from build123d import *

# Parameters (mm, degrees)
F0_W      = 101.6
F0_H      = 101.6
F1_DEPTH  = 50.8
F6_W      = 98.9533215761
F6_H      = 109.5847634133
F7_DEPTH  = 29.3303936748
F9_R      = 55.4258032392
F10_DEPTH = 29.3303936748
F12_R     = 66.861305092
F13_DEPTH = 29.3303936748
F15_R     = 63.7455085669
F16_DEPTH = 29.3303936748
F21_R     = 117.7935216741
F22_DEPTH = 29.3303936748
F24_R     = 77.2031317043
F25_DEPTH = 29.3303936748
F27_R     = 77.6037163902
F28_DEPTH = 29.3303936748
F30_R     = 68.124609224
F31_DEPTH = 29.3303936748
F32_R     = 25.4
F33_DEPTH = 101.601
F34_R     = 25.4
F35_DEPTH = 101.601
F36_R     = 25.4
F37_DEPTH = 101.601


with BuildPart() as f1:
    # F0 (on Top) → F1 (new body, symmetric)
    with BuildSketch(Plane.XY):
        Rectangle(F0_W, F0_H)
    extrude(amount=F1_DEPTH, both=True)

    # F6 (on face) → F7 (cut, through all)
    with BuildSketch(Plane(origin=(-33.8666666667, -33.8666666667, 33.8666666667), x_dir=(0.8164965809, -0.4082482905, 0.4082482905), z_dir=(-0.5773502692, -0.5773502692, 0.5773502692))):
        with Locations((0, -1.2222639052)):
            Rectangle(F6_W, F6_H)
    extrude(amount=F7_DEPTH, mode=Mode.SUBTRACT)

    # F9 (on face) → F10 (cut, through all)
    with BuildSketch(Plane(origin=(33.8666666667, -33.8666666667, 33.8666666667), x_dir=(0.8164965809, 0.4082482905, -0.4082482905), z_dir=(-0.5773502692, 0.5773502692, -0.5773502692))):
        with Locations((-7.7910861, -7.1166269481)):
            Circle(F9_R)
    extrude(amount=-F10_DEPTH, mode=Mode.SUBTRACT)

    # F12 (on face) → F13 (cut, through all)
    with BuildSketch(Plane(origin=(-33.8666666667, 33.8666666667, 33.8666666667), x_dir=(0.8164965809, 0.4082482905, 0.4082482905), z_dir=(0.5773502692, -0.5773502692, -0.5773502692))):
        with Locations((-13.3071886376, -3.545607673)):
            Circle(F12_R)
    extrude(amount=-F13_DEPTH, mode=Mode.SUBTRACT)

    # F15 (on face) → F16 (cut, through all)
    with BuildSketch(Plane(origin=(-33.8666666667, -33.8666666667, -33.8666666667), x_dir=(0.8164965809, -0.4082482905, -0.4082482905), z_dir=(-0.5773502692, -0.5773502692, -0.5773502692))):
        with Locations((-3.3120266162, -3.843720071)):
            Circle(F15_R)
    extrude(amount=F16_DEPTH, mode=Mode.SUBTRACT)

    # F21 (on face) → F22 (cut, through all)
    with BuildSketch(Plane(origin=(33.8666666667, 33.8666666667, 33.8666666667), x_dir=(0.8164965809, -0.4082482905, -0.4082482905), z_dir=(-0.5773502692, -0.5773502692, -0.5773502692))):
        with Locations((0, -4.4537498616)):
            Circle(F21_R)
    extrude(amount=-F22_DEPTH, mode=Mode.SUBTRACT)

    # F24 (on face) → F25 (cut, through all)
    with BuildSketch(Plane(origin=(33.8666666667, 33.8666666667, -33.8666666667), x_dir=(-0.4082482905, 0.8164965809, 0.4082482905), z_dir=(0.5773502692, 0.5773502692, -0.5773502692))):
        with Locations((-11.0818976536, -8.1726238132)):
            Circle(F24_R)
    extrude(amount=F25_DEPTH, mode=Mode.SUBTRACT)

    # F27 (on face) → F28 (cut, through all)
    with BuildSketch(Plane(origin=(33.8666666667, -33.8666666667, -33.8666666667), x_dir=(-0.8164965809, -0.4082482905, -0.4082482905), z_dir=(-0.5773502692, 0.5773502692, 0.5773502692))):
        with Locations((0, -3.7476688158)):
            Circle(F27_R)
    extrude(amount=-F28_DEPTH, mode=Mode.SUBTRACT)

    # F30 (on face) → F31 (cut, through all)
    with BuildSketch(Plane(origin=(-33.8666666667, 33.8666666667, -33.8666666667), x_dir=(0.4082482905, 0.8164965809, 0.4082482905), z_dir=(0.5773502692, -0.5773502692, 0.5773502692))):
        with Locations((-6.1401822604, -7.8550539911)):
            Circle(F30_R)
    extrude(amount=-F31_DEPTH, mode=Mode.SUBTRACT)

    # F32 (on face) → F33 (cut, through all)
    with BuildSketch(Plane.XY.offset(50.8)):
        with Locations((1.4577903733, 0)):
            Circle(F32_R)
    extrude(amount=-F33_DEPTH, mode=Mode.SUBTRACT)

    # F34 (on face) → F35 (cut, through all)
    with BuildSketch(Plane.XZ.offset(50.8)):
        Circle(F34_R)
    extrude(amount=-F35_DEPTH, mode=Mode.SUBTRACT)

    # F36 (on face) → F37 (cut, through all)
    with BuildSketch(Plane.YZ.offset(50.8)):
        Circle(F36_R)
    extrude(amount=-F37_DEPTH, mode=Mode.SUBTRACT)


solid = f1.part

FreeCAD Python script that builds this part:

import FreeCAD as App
import Part
import Sketcher
Q = App.Units.Quantity

doc = App.newDocument("Part")
body = doc.addObject("PartDesign::Body", "Body")

# Sketch on XY plane
sketch1 = doc.addObject("Sketcher::SketchObject", "Sketch")
body.addObject(sketch1)
sketch1.AttachmentSupport = (doc.XY_Plane, [""])
sketch1.MapMode = "FlatFace"
sketch1.addGeometry([
    Part.LineSegment(App.Vector(-51, 51, 0), App.Vector(-51, -51, 0)),
    Part.LineSegment(App.Vector(-51, -51, 0), App.Vector(51, -51, 0)),
    Part.LineSegment(App.Vector(51, -51, 0), App.Vector(51, 51, 0)),
    Part.LineSegment(App.Vector(51, 51, 0), App.Vector(-51, 51, 0)),
], False)
sketch1.addConstraint([
    Sketcher.Constraint("Coincident", 0, 2, 1, 1),
    Sketcher.Constraint("Coincident", 1, 2, 2, 1),
    Sketcher.Constraint("Coincident", 2, 2, 3, 1),
    Sketcher.Constraint("Coincident", 3, 2, 0, 1),
    Sketcher.Constraint("Vertical", 0),
    Sketcher.Constraint("Horizontal", 1),
    Sketcher.Constraint("Vertical", 2),
    Sketcher.Constraint("Horizontal", 3),
    Sketcher.Constraint("Symmetric", 0, 2, 2, 2, -1, 1),
    Sketcher.Constraint("Equal", 3, 0),
    Sketcher.Constraint("DistanceX", 1, 1, 1, 2, Q("4 in")),
])
pad1 = doc.addObject("PartDesign::Pad", "Pad")
body.addObject(pad1)
pad1.Profile = sketch1
pad1.Length = Q("4 in")
pad1.Midplane = True

# Sketch on an angled plane
sketch2 = doc.addObject("Sketcher::SketchObject", "Sketch001")
body.addObject(sketch2)
sketch2.Placement = App.Placement(App.Vector(-33.866667, -33.866667, 33.866667), App.Rotation(App.Vector(0.816496581, -0.40824829, 0.40824829), App.Vector(0, 0.707106781, 0.707106781), App.Vector(-0.577350269, -0.577350269, 0.577350269), "ZXY"))
sketch2.addGeometry([
    Part.LineSegment(App.Vector(-49, 54, 0), App.Vector(-49, -56, 0)),
    Part.LineSegment(App.Vector(-49, -56, 0), App.Vector(49, -56, 0)),
    Part.LineSegment(App.Vector(49, -56, 0), App.Vector(49, 54, 0)),
    Part.LineSegment(App.Vector(49, 54, 0), App.Vector(-49, 54, 0)),
], False)
sketch2.addConstraint([
    Sketcher.Constraint("Coincident", 0, 2, 1, 1),
    Sketcher.Constraint("Coincident", 1, 2, 2, 1),
    Sketcher.Constraint("Coincident", 2, 2, 3, 1),
    Sketcher.Constraint("Coincident", 3, 2, 0, 1),
    Sketcher.Constraint("Vertical", 0),
    Sketcher.Constraint("Horizontal", 1),
    Sketcher.Constraint("Vertical", 2),
    Sketcher.Constraint("Horizontal", 3),
    Sketcher.Constraint("DistanceX", 1, 1, 1, 2, Q("3.8958001 in")),
    Sketcher.Constraint("DistanceX", 0, 2, -1, 1, Q("1.9479 in")),
    Sketcher.Constraint("DistanceY", 0, 2, 0, 1, Q("109.584763 mm")),
    Sketcher.Constraint("DistanceY", 0, 2, -1, 1, Q("56.014646 mm")),
])
pocket1 = doc.addObject("PartDesign::Pocket", "Pocket")
body.addObject(pocket1)
pocket1.Profile = sketch2
pocket1.Type = "ThroughAll"
pocket1.Reversed = True

# Sketch on an angled plane
sketch3 = doc.addObject("Sketcher::SketchObject", "Sketch002")
body.addObject(sketch3)
sketch3.Placement = App.Placement(App.Vector(33.866667, -33.866667, 33.866667), App.Rotation(App.Vector(0.816496581, 0.40824829, -0.40824829), App.Vector(0, -0.707106781, -0.707106781), App.Vector(-0.577350269, 0.577350269, -0.577350269), "ZXY"))
sketch3.addGeometry(Part.Circle(App.Vector(-8, -7, 0), App.Vector(0, 0, 1), 55), False)
sketch3.addConstraint([
    Sketcher.Constraint("Diameter", 0, Q("110.851606 mm")),
    Sketcher.Constraint("DistanceX", 0, 3, -1, 1, Q("7.791086 mm")),
    Sketcher.Constraint("DistanceY", 0, 3, -1, 1, Q("7.116627 mm")),
])
pocket2 = doc.addObject("PartDesign::Pocket", "Pocket001")
body.addObject(pocket2)
pocket2.Profile = sketch3
pocket2.Type = "ThroughAll"

# Sketch on an angled plane
sketch4 = doc.addObject("Sketcher::SketchObject", "Sketch003")
body.addObject(sketch4)
sketch4.Placement = App.Placement(App.Vector(-33.866667, 33.866667, 33.866667), App.Rotation(App.Vector(0.816496581, 0.40824829, 0.40824829), App.Vector(0, -0.707106781, 0.707106781), App.Vector(0.577350269, -0.577350269, -0.577350269), "ZXY"))
sketch4.addGeometry(Part.Circle(App.Vector(-13, -4, 0), App.Vector(0, 0, 1), 67), False)
sketch4.addConstraint([
    Sketcher.Constraint("Diameter", 0, Q("133.72261 mm")),
    Sketcher.Constraint("DistanceX", 0, 3, -1, 1, Q("13.307189 mm")),
    Sketcher.Constraint("DistanceY", 0, 3, -1, 1, Q("3.545608 mm")),
])
pocket3 = doc.addObject("PartDesign::Pocket", "Pocket002")
body.addObject(pocket3)
pocket3.Profile = sketch4
pocket3.Type = "ThroughAll"

# Sketch on an angled plane
sketch5 = doc.addObject("Sketcher::SketchObject", "Sketch004")
body.addObject(sketch5)
sketch5.Placement = App.Placement(App.Vector(-33.866667, -33.866667, -33.866667), App.Rotation(App.Vector(0.816496581, -0.40824829, -0.40824829), App.Vector(0, -0.707106781, 0.707106781), App.Vector(-0.577350269, -0.577350269, -0.577350269), "ZXY"))
sketch5.addGeometry(Part.Circle(App.Vector(-3, -4, 0), App.Vector(0, 0, 1), 64), False)
sketch5.addConstraint([
    Sketcher.Constraint("Diameter", 0, Q("127.491017 mm")),
    Sketcher.Constraint("DistanceY", 0, 3, -1, 1, Q("3.84372 mm")),
    Sketcher.Constraint("DistanceX", 0, 3, -1, 1, Q("3.312027 mm")),
])
pocket4 = doc.addObject("PartDesign::Pocket", "Pocket003")
body.addObject(pocket4)
pocket4.Profile = sketch5
pocket4.Type = "ThroughAll"
pocket4.Reversed = True

# Sketch on an angled plane
sketch6 = doc.addObject("Sketcher::SketchObject", "Sketch005")
body.addObject(sketch6)
sketch6.Placement = App.Placement(App.Vector(33.866667, 33.866667, 33.866667), App.Rotation(App.Vector(0.816496581, -0.40824829, -0.40824829), App.Vector(0, -0.707106781, 0.707106781), App.Vector(-0.577350269, -0.577350269, -0.577350269), "ZXY"))
sketch6.addGeometry(Part.Circle(App.Vector(0, -4, 0), App.Vector(0, 0, 1), 118), False)
sketch6.addConstraint([
    Sketcher.Constraint("PointOnObject", 0, 3, -2),
    Sketcher.Constraint("Diameter", 0, Q("235.587043 mm")),
    Sketcher.Constraint("DistanceY", 0, 3, -1, 1, Q("4.45375 mm")),
])
pocket5 = doc.addObject("PartDesign::Pocket", "Pocket004")
body.addObject(pocket5)
pocket5.Profile = sketch6
pocket5.Type = "ThroughAll"

# Sketch on an angled plane
sketch7 = doc.addObject("Sketcher::SketchObject", "Sketch006")
body.addObject(sketch7)
sketch7.Placement = App.Placement(App.Vector(33.866667, 33.866667, -33.866667), App.Rotation(App.Vector(-0.40824829, 0.816496581, 0.40824829), App.Vector(0.707106781, 0, 0.707106781), App.Vector(0.577350269, 0.577350269, -0.577350269), "ZXY"))
sketch7.addGeometry(Part.Circle(App.Vector(-11, -8, 0), App.Vector(0, 0, 1), 77), False)
sketch7.addConstraint([
    Sketcher.Constraint("Diameter", 0, Q("154.406263 mm")),
    Sketcher.Constraint("DistanceX", 0, 3, -1, 1, Q("11.081898 mm")),
    Sketcher.Constraint("DistanceY", 0, 3, -1, 1, Q("8.172624 mm")),
])
pocket6 = doc.addObject("PartDesign::Pocket", "Pocket005")
body.addObject(pocket6)
pocket6.Profile = sketch7
pocket6.Type = "ThroughAll"
pocket6.Reversed = True

# Sketch on an angled plane
sketch8 = doc.addObject("Sketcher::SketchObject", "Sketch007")
body.addObject(sketch8)
sketch8.Placement = App.Placement(App.Vector(33.866667, -33.866667, -33.866667), App.Rotation(App.Vector(-0.816496581, -0.40824829, -0.40824829), App.Vector(0, -0.707106781, 0.707106781), App.Vector(-0.577350269, 0.577350269, 0.577350269), "ZXY"))
sketch8.addGeometry(Part.Circle(App.Vector(0, -4, 0), App.Vector(0, 0, 1), 78), False)
sketch8.addConstraint([
    Sketcher.Constraint("PointOnObject", 0, 3, -2),
    Sketcher.Constraint("Diameter", 0, Q("155.207433 mm")),
    Sketcher.Constraint("DistanceY", 0, 3, -1, 1, Q("3.747669 mm")),
])
pocket7 = doc.addObject("PartDesign::Pocket", "Pocket006")
body.addObject(pocket7)
pocket7.Profile = sketch8
pocket7.Type = "ThroughAll"

# Sketch on an angled plane
sketch9 = doc.addObject("Sketcher::SketchObject", "Sketch008")
body.addObject(sketch9)
sketch9.Placement = App.Placement(App.Vector(-33.866667, 33.866667, -33.866667), App.Rotation(App.Vector(0.40824829, 0.816496581, 0.40824829), App.Vector(-0.707106781, 0, 0.707106781), App.Vector(0.577350269, -0.577350269, 0.577350269), "ZXY"))
sketch9.addGeometry(Part.Circle(App.Vector(-6, -8, 0), App.Vector(0, 0, 1), 68), False)
sketch9.addConstraint([
    Sketcher.Constraint("Diameter", 0, Q("136.249218 mm")),
    Sketcher.Constraint("DistanceX", 0, 3, -1, 1, Q("6.140182 mm")),
    Sketcher.Constraint("DistanceY", 0, 3, -1, 1, Q("7.855054 mm")),
])
pocket8 = doc.addObject("PartDesign::Pocket", "Pocket007")
body.addObject(pocket8)
pocket8.Profile = sketch9
pocket8.Type = "ThroughAll"

# Sketch on XY plane
sketch10 = doc.addObject("Sketcher::SketchObject", "Sketch009")
body.addObject(sketch10)
sketch10.AttachmentSupport = (doc.XY_Plane, [""])
sketch10.MapMode = "FlatFace"
sketch10.AttachmentOffset = App.Placement(App.Vector(0, 0, 2 * 25.4), App.Rotation())
sketch10.addGeometry(Part.Circle(App.Vector(1, 0, 0), App.Vector(0, 0, 1), 25), False)
sketch10.addConstraint([
    Sketcher.Constraint("PointOnObject", 0, 3, -1),
    Sketcher.Constraint("Diameter", 0, Q("2 in")),
    Sketcher.Constraint("DistanceX", -1, 1, 0, 3, Q("1.45779 mm")),
])
pocket9 = doc.addObject("PartDesign::Pocket", "Pocket008")
body.addObject(pocket9)
pocket9.Profile = sketch10
pocket9.Type = "ThroughAll"

# Sketch on XZ plane
sketch11 = doc.addObject("Sketcher::SketchObject", "Sketch010")
body.addObject(sketch11)
sketch11.AttachmentSupport = (doc.XZ_Plane, [""])
sketch11.MapMode = "FlatFace"
sketch11.AttachmentOffset = App.Placement(App.Vector(0, 0, 2 * 25.4), App.Rotation())
sketch11.addGeometry(Part.Circle(App.Vector(0, 0, 0), App.Vector(0, 0, 1), 25), False)
sketch11.addConstraint([
    Sketcher.Constraint("Coincident", 0, 3, -1, 1),
    Sketcher.Constraint("Diameter", 0, Q("2 in")),
])
pocket10 = doc.addObject("PartDesign::Pocket", "Pocket009")
body.addObject(pocket10)
pocket10.Profile = sketch11
pocket10.Type = "ThroughAll"

# Sketch on YZ plane
sketch12 = doc.addObject("Sketcher::SketchObject", "Sketch011")
body.addObject(sketch12)
sketch12.AttachmentSupport = (doc.YZ_Plane, [""])
sketch12.MapMode = "FlatFace"
sketch12.AttachmentOffset = App.Placement(App.Vector(0, 0, 2 * 25.4), App.Rotation())
sketch12.addGeometry(Part.Circle(App.Vector(0, 0, 0), App.Vector(0, 0, 1), 25), False)
sketch12.addConstraint([
    Sketcher.Constraint("Coincident", 0, 3, -1, 1),
    Sketcher.Constraint("Diameter", 0, Q("2 in")),
])
pocket11 = doc.addObject("PartDesign::Pocket", "Pocket010")
body.addObject(pocket11)
pocket11.Profile = sketch12
pocket11.Type = "ThroughAll"

doc.recompute()
